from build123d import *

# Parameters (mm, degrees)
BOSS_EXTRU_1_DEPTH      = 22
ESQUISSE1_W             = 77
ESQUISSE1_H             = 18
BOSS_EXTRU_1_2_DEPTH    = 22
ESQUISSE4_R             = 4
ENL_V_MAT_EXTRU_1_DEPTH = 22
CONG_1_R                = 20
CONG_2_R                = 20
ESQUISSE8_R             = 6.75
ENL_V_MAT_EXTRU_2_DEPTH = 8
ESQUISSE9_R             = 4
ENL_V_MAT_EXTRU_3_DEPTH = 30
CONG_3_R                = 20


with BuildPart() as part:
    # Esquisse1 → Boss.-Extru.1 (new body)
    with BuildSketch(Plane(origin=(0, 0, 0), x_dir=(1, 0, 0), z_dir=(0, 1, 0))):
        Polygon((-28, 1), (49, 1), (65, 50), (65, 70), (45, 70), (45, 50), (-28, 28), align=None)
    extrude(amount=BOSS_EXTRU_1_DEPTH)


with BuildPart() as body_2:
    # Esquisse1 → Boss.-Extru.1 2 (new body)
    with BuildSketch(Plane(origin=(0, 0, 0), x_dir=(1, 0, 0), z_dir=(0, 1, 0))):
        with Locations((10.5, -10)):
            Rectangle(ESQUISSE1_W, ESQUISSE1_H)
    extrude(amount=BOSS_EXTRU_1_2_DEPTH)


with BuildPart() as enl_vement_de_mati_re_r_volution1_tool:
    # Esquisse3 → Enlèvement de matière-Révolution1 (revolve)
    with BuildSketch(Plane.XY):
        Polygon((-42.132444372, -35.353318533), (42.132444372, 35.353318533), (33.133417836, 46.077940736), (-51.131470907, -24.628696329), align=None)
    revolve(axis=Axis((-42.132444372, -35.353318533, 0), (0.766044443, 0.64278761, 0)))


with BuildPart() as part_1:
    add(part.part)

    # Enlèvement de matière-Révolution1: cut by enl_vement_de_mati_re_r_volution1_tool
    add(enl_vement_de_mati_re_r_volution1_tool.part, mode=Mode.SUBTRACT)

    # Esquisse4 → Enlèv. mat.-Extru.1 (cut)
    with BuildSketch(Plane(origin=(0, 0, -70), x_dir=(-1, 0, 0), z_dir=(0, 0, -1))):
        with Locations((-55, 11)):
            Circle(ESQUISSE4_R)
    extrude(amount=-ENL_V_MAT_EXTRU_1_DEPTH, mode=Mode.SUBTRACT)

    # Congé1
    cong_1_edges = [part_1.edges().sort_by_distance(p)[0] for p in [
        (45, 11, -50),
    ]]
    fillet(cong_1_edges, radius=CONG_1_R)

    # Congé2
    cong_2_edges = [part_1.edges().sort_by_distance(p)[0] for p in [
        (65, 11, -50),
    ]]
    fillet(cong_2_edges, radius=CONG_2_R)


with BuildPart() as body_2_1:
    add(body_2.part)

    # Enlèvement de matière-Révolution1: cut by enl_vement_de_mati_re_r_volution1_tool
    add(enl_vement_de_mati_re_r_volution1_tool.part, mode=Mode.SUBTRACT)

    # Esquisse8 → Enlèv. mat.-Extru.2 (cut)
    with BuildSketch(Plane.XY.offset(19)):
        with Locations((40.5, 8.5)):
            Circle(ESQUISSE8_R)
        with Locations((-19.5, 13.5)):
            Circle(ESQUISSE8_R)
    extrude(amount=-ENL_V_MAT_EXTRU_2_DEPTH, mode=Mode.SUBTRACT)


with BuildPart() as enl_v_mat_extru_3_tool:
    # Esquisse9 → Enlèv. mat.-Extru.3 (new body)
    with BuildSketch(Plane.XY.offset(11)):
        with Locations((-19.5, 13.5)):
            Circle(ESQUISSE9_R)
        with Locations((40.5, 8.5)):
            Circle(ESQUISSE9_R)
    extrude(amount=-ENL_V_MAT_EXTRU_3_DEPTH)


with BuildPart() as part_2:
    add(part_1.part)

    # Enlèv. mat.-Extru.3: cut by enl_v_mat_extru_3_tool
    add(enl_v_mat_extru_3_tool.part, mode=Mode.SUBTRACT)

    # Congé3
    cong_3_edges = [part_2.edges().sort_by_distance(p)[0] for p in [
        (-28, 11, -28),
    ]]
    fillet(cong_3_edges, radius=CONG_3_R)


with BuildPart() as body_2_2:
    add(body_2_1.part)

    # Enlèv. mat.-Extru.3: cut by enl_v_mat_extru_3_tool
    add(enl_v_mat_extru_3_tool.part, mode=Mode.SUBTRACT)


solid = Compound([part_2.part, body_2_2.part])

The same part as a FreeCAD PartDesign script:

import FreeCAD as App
import Part
import Sketcher
Q = App.Units.Quantity


def edges_at(feature, points):
    """Names of the edges that pass closest to the given points."""
    edges = feature.Shape.Edges
    near = lambda p: min(range(len(edges)), key=lambda i: edges[i].distToShape(Part.Vertex(*p))[0])
    return sorted({f"Edge{near(p) + 1}" for p in points})


def add_polygon(sketch, points):
    """Adds a closed chain of lines whose ends are joined by coincident constraints."""
    first, n = sketch.GeometryCount, len(points)
    for a, b in zip(points, points[1:] + points[:1]):
        sketch.addGeometry(Part.LineSegment(App.Vector(*a, 0), App.Vector(*b, 0)), False)
    for i in range(n):
        sketch.addConstraint(Sketcher.Constraint("Coincident", first + i, 2, first + (i + 1) % n, 1))

doc = App.newDocument("Part")
params = doc.addObject("Spreadsheet::Sheet", "Params")
for row, (alias, value) in enumerate([
    ("sketch1_width", "77 mm"),
    ("sketch1_width2", "20 mm"),
    ("sketch1_height", "27 mm"),
    ("pad1_length", "22 mm"),
    ("sketch2_width", "77 mm"),
    ("sketch2_height", "18 mm"),
    ("pad2_length", "22 mm"),
    ("sketch3_length", "110 mm"),
    ("sketch3_length2", "14 mm"),
    ("revolution_angle", "360 deg"),
    ("sketch4_diameter", "8 mm"),
    ("pocket1_length", "22 mm"),
    ("fillet_radius", "20 mm"),
    ("fillet2_radius", "20 mm"),
    ("sketch5_diameter", "13.5 mm"),
    ("pocket2_length", "8 mm"),
    ("sketch6_diameter", "8 mm"),
    ("pad3_length", "30 mm"),
    ("fillet3_radius", "20 mm"),
], start=1):
    params.set(f"A{row}", alias)
    params.set(f"B{row}", "=" + value)
    params.setAlias(f"B{row}", alias)

body = doc.addObject("PartDesign::Body", "Body")

# Sketch on XZ plane
sketch1 = body.newObject("Sketcher::SketchObject", "Sketch")
sketch1.AttachmentSupport = (doc.getObject("XZ_Plane"), [""])
sketch1.MapMode = "FlatFace"
add_polygon(sketch1, [(-28, -1), (49, -1), (65, -50), (65, -70), (45, -70), (45, -50), (-28, -28)])  # lines 0-6
sketch1.addConstraint([
    Sketcher.Constraint("Horizontal", 0),
    Sketcher.Constraint("Vertical", 2),
    Sketcher.Constraint("Horizontal", 3),
    Sketcher.Constraint("Vertical", 4),
    Sketcher.Constraint("Vertical", 6),
    Sketcher.Constraint("Horizontal", 1, 2, 4, 2),
    Sketcher.Constraint("Equal", 3, 2),
    Sketcher.Constraint("DistanceX", 0, 1, 0, 2, 77.0),
    Sketcher.Constraint("DistanceX", 3, 2, 3, 1, 20.0),
    Sketcher.Constraint("DistanceY", 6, 1, 6, 2, 27.0),
    Sketcher.Constraint("DistanceX", -1, 1, 0, 2, 49.0),
    Sketcher.Constraint("DistanceY", 0, 2, -1, 1, 1.0),
    Sketcher.Constraint("DistanceX", -1, 1, 1, 2, 65.0),
    Sketcher.Constraint("DistanceY", 1, 2, -1, 1, 50.0),
])
sketch1.setExpression("Constraints[14]", "Params.sketch1_width")
sketch1.setExpression("Constraints[15]", "Params.sketch1_width2")
sketch1.setExpression("Constraints[16]", "Params.sketch1_height")
pad1 = body.newObject("PartDesign::Pad", "Pad")
pad1.Profile = sketch1
pad1.setExpression("Length", "Params.pad1_length")
pad1.Reversed = True
body2 = doc.addObject("PartDesign::Body", "Body001")

# Sketch on XZ plane
sketch2 = body2.newObject("Sketcher::SketchObject", "Sketch001")
sketch2.AttachmentSupport = (doc.getObject("XZ_Plane001"), [""])
sketch2.MapMode = "FlatFace"
add_polygon(sketch2, [(-28, 1), (-28, 19), (49, 19), (49, 1)])  # lines 0-3
sketch2.addConstraint([
    Sketcher.Constraint("Vertical", 0),
    Sketcher.Constraint("Horizontal", 1),
    Sketcher.Constraint("Vertical", 2),
    Sketcher.Constraint("Horizontal", 3),
    Sketcher.Constraint("DistanceX", 1, 1, 1, 2, 77.0),
    Sketcher.Constraint("DistanceY", 0, 1, 0, 2, 18.0),
    Sketcher.Constraint("DistanceX", 0, 2, -1, 1, 28.0),
    Sketcher.Constraint("DistanceY", -1, 1, 0, 2, 19.0),
])
sketch2.setExpression("Constraints[8]", "Params.sketch2_width")
sketch2.setExpression("Constraints[9]", "Params.sketch2_height")
pad2 = body2.newObject("PartDesign::Pad", "Pad001")
pad2.Profile = sketch2
pad2.setExpression("Length", "Params.pad2_length")
pad2.Reversed = True
body3 = doc.addObject("PartDesign::Body", "Body002")

# Sketch on XY plane
sketch3 = body3.newObject("Sketcher::SketchObject", "Sketch002")
sketch3.AttachmentSupport = (doc.getObject("XY_Plane002"), [""])
sketch3.MapMode = "FlatFace"
add_polygon(sketch3, [(-42, -35), (42, 35), (33, 46), (-51, -25)])  # lines 0-3
sketch3.addGeometry(Part.LineSegment(App.Vector(-42, -35, 0), App.Vector(42, 35, 0)), True)  # axis
sketch3.addConstraint([
    Sketcher.Constraint("Coincident", 4, 1, 3, 2),
    Sketcher.Constraint("Coincident", 4, 2, 0, 2),
    Sketcher.Constraint("Symmetric", 0, 2, 3, 2, -1, 1),
    Sketcher.Constraint("Perpendicular", 0, 1),
    Sketcher.Constraint("Perpendicular", 1, 2),
    Sketcher.Constraint("Perpendicular", 2, 3),
    Sketcher.Constraint("Angle", 0, Q("40 deg")),
    Sketcher.Constraint("Distance", 0, 110.0),
    Sketcher.Constraint("Distance", 1, 14.0),
])
sketch3.setExpression("Constraints[11]", "Params.sketch3_length")
sketch3.setExpression("Constraints[12]", "Params.sketch3_length2")
revolution = body3.newObject("PartDesign::Revolution", "Revolution")
revolution.Profile = sketch3
revolution.ReferenceAxis = (sketch3, ["Axis0"])
revolution.setExpression("Angle", "Params.revolution_angle")
doc.recompute()

body4 = doc.addObject("PartDesign::Body", "Body003")
body4.BaseFeature = body3
boolean = body.newObject("PartDesign::Boolean", "Boolean")
boolean.Type = "Cut"
boolean.addObjects([body4])
doc.recompute()

# Sketch on XY plane
sketch4 = body.newObject("Sketcher::SketchObject", "Sketch003")
sketch4.AttachmentSupport = (doc.getObject("XY_Plane"), [""])
sketch4.MapMode = "FlatFace"
sketch4.AttachmentOffset = App.Placement(App.Vector(0, 0, -70), App.Rotation())
sketch4.addGeometry(Part.Circle(App.Vector(55, 11, 0), App.Vector(0, 0, 1), 4), False)
sketch4.addConstraint([
    Sketcher.Constraint("Diameter", 0, 8.0),
    Sketcher.Constraint("DistanceX", -1, 1, 0, 3, 55.0),
    Sketcher.Constraint("DistanceY", -1, 1, 0, 3, 11.0),
])
sketch4.setExpression("Constraints[0]", "Params.sketch4_diameter")
pocket1 = body.newObject("PartDesign::Pocket", "Pocket")
pocket1.Profile = sketch4
pocket1.setExpression("Length", "Params.pocket1_length")
pocket1.Reversed = True
doc.recompute()

fillet = body.newObject("PartDesign::Fillet", "Fillet")
fillet.Base = (pocket1, edges_at(pocket1, [(45, 11, -50)]))
fillet.setExpression("Radius", "Params.fillet_radius")
doc.recompute()

fillet2 = body.newObject("PartDesign::Fillet", "Fillet001")
fillet2.Base = (fillet, edges_at(fillet, [(65, 11, -50)]))
fillet2.setExpression("Radius", "Params.fillet2_radius")
doc.recompute()

boolean2 = body2.newObject("PartDesign::Boolean", "Boolean001")
boolean2.Type = "Cut"
boolean2.addObjects([body3])

# Sketch on XY plane
sketch5 = body2.newObject("Sketcher::SketchObject", "Sketch004")
sketch5.AttachmentSupport = (doc.getObject("XY_Plane001"), [""])
sketch5.MapMode = "FlatFace"
sketch5.AttachmentOffset = App.Placement(App.Vector(0, 0, 19), App.Rotation())
sketch5.addGeometry([
    Part.Circle(App.Vector(40, 8, 0), App.Vector(0, 0, 1), 7),
    Part.Circle(App.Vector(-20, 14, 0), App.Vector(0, 0, 1), 7),
], False)
sketch5.addConstraint([
    Sketcher.Constraint("Equal", 0, 1),
    Sketcher.Constraint("Diameter", 0, 13.5),
    Sketcher.Constraint("DistanceX", 1, 3, 0, 3, 60.0),
    Sketcher.Constraint("DistanceY", 0, 3, 1, 3, 5.0),
    Sketcher.Constraint("DistanceX", -1, 1, 0, 3, 40.5),
    Sketcher.Constraint("DistanceY", -1, 1, 0, 3, 8.5),
])
sketch5.setExpression("Constraints[1]", "Params.sketch5_diameter")
pocket2 = body2.newObject("PartDesign::Pocket", "Pocket001")
pocket2.Profile = sketch5
pocket2.setExpression("Length", "Params.pocket2_length")
body5 = doc.addObject("PartDesign::Body", "Body004")
body5.AllowCompound = True

# Sketch on XY plane
sketch6 = body5.newObject("Sketcher::SketchObject", "Sketch005")
sketch6.AttachmentSupport = (doc.getObject("XY_Plane004"), [""])
sketch6.MapMode = "FlatFace"
sketch6.AttachmentOffset = App.Placement(App.Vector(0, 0, 11), App.Rotation())
sketch6.addGeometry([
    Part.Circle(App.Vector(-19.5, 13.5, 0), App.Vector(0, 0, 1), 4),
    Part.Circle(App.Vector(40.5, 8.5, 0), App.Vector(0, 0, 1), 4),
], False)
sketch6.addConstraint([
    Sketcher.Constraint("Equal", 0, 1),
    Sketcher.Constraint("Diameter", 0, 8.0),
    Sketcher.Constraint("DistanceX", 0, 3, 1, 3, 60.0),
    Sketcher.Constraint("DistanceY", 1, 3, 0, 3, 5.0),
    Sketcher.Constraint("DistanceX", 0, 3, -1, 1, 19.5),
    Sketcher.Constraint("DistanceY", -1, 1, 0, 3, 13.5),
])
sketch6.setExpression("Constraints[1]", "Params.sketch6_diameter")
pad3 = body5.newObject("PartDesign::Pad", "Pad002")
pad3.Profile = sketch6
pad3.setExpression("Length", "Params.pad3_length")
pad3.Reversed = True
doc.recompute()

body6 = doc.addObject("PartDesign::Body", "Body005")
body6.BaseFeature = body5
boolean3 = body.newObject("PartDesign::Boolean", "Boolean002")
boolean3.Type = "Cut"
boolean3.addObjects([body6])
doc.recompute()

fillet3 = body.newObject("PartDesign::Fillet", "Fillet002")
fillet3.Base = (boolean3, edges_at(boolean3, [(-28, 11, -28)]))
fillet3.setExpression("Radius", "Params.fillet3_radius")
doc.recompute()

boolean4 = body2.newObject("PartDesign::Boolean", "Boolean003")
boolean4.Type = "Cut"
boolean4.addObjects([body5])

doc.recompute()
